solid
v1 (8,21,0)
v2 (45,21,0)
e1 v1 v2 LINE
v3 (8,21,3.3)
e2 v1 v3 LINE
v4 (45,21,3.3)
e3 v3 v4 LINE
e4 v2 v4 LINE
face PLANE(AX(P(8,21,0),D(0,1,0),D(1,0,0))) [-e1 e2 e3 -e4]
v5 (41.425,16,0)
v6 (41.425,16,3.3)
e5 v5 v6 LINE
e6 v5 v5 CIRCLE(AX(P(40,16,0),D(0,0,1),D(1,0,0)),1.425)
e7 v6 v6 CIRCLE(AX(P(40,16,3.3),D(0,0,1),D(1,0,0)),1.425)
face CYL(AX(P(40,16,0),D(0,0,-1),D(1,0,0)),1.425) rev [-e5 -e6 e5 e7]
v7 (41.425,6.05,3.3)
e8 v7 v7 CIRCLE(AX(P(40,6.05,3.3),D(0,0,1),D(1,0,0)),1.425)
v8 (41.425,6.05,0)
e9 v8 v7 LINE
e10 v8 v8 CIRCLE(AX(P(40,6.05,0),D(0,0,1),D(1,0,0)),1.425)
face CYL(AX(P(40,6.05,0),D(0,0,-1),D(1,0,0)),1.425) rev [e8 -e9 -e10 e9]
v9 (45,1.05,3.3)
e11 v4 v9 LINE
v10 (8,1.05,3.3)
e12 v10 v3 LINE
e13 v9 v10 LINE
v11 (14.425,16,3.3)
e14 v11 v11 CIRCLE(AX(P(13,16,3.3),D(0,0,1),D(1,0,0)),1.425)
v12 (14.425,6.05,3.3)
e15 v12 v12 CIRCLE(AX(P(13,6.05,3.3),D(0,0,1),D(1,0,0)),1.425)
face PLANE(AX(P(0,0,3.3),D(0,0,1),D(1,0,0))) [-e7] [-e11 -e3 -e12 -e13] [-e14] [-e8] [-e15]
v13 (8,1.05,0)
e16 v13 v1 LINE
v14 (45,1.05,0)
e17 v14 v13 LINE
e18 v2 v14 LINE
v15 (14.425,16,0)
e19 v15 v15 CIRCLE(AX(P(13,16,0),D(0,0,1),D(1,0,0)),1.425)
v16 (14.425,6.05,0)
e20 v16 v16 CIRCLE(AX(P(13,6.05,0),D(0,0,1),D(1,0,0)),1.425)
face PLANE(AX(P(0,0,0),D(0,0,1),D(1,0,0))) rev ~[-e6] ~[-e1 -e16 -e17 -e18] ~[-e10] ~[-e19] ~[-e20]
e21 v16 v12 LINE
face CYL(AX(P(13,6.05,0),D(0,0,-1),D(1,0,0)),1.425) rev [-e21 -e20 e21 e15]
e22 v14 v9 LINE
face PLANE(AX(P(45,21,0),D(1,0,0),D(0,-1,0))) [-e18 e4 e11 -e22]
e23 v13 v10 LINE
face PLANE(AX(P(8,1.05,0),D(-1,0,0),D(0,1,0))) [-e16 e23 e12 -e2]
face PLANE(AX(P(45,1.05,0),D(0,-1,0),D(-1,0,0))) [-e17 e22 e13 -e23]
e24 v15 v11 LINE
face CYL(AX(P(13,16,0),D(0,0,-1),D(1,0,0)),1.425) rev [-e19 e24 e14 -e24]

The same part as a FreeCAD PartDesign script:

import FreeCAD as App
import Part
import Sketcher
from FreeCAD import Vector
Q = App.Units.Quantity


def add_polygon(sketch, points):
    """Adds a closed chain of lines whose ends are joined by coincident constraints."""
    first, n = sketch.GeometryCount, len(points)
    for a, b in zip(points, points[1:] + points[:1]):
        sketch.addGeometry(Part.LineSegment(App.Vector(*a, 0), App.Vector(*b, 0)), False)
    for i in range(n):
        sketch.addConstraint(Sketcher.Constraint("Coincident", first + i, 2, first + (i + 1) % n, 1))

doc = App.newDocument("Part")
params = doc.addObject("Spreadsheet::Sheet", "Params")
for row, (alias, value) in enumerate([
    ("sketch1_diameter", "2.85 mm"),
    ("pad1_length", "3.3 mm"),
], start=1):
    params.set(f"A{row}", alias)
    params.set(f"B{row}", "=" + value)
    params.setAlias(f"B{row}", alias)

body = doc.addObject("PartDesign::Body", "Body")

sketch1 = body.newObject("Sketcher::SketchObject", "Sketch")
sketch1.AttachmentSupport = (doc.getObject("XY_Plane"), [""])
sketch1.MapMode = "FlatFace"
add_polygon(sketch1, [(8, 1.1), (45, 1.1), (45, 21), (8, 21)])
sketch1.addGeometry(Part.Circle(Vector(13, 6, 0), Vector(0, 0, 1), 1.4), False)
sketch1.addGeometry(Part.Circle(Vector(40, 6, 0), Vector(0, 0, 1), 1.4), False)
sketch1.addGeometry(Part.Circle(Vector(13, 16, 0), Vector(0, 0, 1), 1.4), False)
sketch1.addGeometry(Part.Circle(Vector(40, 16, 0), Vector(0, 0, 1), 1.4), False)
sketch1.addConstraint([
    Sketcher.Constraint("Horizontal", 0),
    Sketcher.Constraint("Vertical", 1),
    Sketcher.Constraint("Horizontal", 2),
    Sketcher.Constraint("Vertical", 3),
    Sketcher.Constraint("Equal", 4, 5),
    Sketcher.Constraint("Equal", 5, 6),
    Sketcher.Constraint("Equal", 6, 7),
    Sketcher.Constraint("Horizontal", 4, 3, 5, 3),
    Sketcher.Constraint("Horizontal", 6, 3, 7, 3),
    Sketcher.Constraint("Vertical", 4, 3, 6, 3),
    Sketcher.Constraint("Vertical", 5, 3, 7, 3),
    Sketcher.Constraint("DistanceX", 4, 3, 5, 3, Q("27 mm")),
    Sketcher.Constraint("DistanceX", 5, 3, 0, 2, Q("5 mm")),
    Sketcher.Constraint("DistanceY", 0, 2, 5, 3, Q("5 mm")),
    Sketcher.Constraint("DistanceY", 7, 3, 1, 2, Q("5 mm")),
    Sketcher.Constraint("DistanceX", 2, 2, 6, 3, Q("5 mm")),
    Sketcher.Constraint("Diameter", 4, Q("2.85 mm")),
    Sketcher.Constraint("DistanceY", 4, 3, 6, 3, Q("9.95 mm")),
    Sketcher.Constraint("DistanceX", -1, 1, 4, 3, Q("13 mm")),
    Sketcher.Constraint("DistanceY", -1, 1, 6, 3, Q("16 mm")),
])
sketch1.setExpression("Constraints[20]", "Params.sketch1_diameter")
pad1 = body.newObject("PartDesign::Pad", "Pad")
pad1.Profile = sketch1
pad1.setExpression("Length", "Params.pad1_length")

doc.recompute()
